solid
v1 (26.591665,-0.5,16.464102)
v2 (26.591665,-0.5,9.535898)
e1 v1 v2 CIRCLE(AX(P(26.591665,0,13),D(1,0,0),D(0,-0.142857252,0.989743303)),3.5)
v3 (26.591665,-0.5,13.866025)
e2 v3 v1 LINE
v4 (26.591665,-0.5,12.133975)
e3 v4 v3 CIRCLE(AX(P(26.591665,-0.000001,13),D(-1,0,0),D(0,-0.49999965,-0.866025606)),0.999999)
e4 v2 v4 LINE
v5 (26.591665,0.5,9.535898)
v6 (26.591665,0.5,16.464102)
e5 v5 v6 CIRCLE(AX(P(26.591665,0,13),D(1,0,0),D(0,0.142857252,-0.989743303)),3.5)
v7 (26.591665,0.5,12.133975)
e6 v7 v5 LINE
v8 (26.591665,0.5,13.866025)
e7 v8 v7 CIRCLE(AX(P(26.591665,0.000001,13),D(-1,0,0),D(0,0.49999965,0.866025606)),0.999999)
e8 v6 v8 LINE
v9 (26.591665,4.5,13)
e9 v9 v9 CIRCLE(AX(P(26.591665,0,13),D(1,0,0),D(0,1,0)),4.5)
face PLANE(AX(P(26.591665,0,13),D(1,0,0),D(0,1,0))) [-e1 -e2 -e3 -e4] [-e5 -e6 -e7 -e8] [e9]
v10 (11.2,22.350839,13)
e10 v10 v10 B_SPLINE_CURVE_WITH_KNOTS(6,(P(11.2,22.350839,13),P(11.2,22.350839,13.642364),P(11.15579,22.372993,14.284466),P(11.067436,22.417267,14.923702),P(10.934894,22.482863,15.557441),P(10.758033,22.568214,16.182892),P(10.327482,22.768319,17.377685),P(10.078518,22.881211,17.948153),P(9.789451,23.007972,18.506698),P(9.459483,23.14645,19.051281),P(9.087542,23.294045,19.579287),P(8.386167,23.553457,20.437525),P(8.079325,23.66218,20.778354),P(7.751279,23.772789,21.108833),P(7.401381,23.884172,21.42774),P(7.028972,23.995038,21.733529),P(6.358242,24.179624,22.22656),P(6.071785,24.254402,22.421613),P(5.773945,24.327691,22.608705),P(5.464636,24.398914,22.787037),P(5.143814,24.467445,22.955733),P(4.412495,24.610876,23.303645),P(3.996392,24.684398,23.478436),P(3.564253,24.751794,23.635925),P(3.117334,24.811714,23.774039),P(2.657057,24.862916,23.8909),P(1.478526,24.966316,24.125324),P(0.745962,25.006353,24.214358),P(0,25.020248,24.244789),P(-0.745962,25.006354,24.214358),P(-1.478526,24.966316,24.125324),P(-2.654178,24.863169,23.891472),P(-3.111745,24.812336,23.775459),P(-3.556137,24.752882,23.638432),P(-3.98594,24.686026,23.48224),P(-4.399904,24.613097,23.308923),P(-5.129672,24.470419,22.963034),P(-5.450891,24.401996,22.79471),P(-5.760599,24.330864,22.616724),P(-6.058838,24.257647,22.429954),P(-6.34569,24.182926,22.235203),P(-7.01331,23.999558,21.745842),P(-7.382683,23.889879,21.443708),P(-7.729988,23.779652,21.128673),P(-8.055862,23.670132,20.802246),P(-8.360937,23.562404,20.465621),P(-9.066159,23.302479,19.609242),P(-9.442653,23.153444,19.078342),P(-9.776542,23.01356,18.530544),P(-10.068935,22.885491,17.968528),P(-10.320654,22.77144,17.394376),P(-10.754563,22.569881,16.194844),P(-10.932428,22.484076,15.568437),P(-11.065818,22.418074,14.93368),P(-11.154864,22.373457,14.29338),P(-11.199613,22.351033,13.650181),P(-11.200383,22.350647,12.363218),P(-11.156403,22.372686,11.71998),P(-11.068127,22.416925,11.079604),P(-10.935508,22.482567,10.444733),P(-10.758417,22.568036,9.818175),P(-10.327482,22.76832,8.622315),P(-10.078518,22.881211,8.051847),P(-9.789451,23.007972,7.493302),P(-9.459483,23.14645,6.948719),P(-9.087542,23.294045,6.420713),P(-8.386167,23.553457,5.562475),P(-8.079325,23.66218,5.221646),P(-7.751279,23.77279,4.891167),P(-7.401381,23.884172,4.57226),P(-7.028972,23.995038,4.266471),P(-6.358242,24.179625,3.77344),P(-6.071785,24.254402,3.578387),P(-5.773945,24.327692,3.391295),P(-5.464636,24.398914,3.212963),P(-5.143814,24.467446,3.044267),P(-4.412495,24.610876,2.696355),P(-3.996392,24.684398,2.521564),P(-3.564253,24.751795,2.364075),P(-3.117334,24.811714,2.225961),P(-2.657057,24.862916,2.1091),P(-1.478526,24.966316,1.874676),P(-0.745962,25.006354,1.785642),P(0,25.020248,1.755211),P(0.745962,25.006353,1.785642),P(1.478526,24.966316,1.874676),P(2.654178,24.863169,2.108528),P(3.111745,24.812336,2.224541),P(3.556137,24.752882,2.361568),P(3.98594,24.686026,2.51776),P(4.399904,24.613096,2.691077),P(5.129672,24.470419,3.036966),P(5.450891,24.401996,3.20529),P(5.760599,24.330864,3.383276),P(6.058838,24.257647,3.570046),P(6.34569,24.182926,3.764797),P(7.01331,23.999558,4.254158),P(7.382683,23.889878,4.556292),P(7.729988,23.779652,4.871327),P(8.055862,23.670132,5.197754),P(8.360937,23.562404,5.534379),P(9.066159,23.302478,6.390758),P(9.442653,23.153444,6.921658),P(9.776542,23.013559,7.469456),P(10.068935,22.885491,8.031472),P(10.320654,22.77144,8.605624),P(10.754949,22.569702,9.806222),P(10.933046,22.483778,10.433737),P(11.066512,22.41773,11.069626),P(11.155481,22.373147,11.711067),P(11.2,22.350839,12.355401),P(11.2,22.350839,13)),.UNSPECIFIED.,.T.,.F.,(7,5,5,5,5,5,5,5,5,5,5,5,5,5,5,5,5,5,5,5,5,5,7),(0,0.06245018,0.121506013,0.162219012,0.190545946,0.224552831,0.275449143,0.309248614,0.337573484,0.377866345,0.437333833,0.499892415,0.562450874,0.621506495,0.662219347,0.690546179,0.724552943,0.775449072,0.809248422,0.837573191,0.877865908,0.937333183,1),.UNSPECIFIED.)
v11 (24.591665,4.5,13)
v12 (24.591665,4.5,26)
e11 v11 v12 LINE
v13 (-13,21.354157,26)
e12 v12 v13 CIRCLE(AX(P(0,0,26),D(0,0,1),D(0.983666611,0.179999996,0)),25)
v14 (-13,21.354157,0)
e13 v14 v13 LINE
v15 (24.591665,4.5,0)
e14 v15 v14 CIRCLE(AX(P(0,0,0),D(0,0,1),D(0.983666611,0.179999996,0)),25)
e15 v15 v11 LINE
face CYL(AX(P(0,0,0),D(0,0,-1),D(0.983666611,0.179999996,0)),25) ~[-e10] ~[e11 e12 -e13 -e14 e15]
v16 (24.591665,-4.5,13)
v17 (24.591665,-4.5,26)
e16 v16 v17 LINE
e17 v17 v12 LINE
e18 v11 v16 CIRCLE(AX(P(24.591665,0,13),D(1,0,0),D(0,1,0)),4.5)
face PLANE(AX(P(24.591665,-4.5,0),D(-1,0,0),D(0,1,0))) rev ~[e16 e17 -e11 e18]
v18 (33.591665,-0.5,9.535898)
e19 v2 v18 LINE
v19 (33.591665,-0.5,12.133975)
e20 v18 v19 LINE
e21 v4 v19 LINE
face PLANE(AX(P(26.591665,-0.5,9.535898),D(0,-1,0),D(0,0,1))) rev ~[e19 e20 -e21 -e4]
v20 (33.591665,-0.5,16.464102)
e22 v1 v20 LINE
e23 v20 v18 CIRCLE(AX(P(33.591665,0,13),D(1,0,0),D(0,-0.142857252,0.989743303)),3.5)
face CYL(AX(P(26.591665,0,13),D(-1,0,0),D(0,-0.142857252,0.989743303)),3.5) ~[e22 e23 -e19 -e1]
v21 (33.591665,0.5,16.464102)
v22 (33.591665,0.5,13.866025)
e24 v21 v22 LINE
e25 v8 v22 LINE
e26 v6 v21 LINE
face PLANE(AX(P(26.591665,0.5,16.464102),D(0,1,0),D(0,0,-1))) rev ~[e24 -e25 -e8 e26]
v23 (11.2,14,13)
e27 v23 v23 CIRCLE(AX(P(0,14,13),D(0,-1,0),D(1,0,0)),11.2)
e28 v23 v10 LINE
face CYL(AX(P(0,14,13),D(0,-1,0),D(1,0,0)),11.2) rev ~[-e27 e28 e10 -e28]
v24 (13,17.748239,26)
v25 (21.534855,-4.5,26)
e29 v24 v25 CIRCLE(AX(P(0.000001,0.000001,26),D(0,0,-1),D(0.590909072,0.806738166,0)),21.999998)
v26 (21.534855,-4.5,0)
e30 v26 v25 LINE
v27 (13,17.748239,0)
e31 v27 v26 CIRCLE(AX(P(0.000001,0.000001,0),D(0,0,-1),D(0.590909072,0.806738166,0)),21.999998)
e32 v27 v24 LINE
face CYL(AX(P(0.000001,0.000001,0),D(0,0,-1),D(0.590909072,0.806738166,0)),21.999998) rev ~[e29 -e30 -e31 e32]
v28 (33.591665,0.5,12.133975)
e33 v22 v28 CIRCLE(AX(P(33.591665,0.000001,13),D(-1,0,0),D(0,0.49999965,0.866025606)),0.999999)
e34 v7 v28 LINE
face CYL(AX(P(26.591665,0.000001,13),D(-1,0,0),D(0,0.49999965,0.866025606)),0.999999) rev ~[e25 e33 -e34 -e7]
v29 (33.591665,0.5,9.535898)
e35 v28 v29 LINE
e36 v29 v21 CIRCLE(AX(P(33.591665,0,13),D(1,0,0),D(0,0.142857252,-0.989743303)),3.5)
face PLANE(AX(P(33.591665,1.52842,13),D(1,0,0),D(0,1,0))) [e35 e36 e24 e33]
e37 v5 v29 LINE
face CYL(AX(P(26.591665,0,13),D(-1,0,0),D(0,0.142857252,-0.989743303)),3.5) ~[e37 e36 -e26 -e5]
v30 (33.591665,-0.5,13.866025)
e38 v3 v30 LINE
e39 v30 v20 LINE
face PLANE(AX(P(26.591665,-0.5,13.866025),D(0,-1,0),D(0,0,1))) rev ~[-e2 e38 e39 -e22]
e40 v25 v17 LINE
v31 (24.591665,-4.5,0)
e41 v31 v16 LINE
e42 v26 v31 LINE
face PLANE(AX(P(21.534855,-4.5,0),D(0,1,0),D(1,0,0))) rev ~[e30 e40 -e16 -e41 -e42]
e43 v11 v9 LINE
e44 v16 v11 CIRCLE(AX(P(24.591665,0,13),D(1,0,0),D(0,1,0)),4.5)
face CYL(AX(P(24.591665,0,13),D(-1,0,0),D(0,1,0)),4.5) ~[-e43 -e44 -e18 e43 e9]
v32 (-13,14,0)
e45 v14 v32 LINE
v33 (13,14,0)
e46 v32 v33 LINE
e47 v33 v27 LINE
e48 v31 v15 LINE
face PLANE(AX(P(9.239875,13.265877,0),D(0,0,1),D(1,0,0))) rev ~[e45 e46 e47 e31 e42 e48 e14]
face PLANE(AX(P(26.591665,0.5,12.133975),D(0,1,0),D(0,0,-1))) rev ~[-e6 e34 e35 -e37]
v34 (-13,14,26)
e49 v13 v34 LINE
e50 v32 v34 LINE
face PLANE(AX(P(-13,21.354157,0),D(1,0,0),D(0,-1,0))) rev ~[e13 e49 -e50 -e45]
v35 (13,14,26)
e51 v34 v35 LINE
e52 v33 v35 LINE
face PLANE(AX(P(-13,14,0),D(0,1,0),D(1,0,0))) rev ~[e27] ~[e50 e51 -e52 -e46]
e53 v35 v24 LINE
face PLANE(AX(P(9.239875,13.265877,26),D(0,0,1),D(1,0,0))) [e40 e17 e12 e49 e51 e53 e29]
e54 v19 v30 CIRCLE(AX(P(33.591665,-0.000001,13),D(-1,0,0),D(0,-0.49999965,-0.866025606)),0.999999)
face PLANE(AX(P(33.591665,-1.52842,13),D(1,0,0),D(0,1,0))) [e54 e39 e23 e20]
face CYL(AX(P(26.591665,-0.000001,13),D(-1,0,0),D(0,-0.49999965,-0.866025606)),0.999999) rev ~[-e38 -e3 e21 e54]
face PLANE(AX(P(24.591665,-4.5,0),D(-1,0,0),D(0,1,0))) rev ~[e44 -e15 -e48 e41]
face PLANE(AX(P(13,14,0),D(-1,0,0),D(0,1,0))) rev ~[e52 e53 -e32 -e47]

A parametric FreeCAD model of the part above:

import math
import FreeCAD as App
import Part
import Sketcher
Q = App.Units.Quantity

doc = App.newDocument("Part")
params = doc.addObject("Spreadsheet::Sheet", "Params")
for row, (alias, value) in enumerate([
    ("sketch1_radius", "21.999998 mm"),
    ("sketch1_radius2", "25 mm"),
    ("sketch1_width", "26 mm"),
    ("sketch1_height", "9 mm"),
    ("pad1_length", "26 mm"),
    ("sketch2_diameter", "22.4 mm"),
    ("pocket1_length", "25 mm"),
    ("sketch3_diameter", "9 mm"),
    ("pad2_length", "2 mm"),
    ("sketch4_radius", "0.999999 mm"),
    ("sketch4_radius2", "3.5 mm"),
    ("pad3_length", "7 mm"),
], start=1):
    params.set(f"A{row}", alias)
    params.set(f"B{row}", "=" + value)
    params.setAlias(f"B{row}", alias)

body = doc.addObject("PartDesign::Body", "Body")

# Sketch on XY plane
sketch1 = doc.addObject("Sketcher::SketchObject", "Sketch")
body.addObject(sketch1)
sketch1.AttachmentSupport = (doc.XY_Plane, [""])
sketch1.MapMode = "FlatFace"
sketch1.addGeometry([
    Part.ArcOfCircle(Part.Circle(App.Vector(0, 0, 0), App.Vector(0, 0, 1), 22), math.radians(-12), math.radians(54)),  # 0
    Part.LineSegment(App.Vector(21.5, -4.5, 0), App.Vector(24.6, -4.5, 0)),  # 1
    Part.LineSegment(App.Vector(24.6, -4.5, 0), App.Vector(24.6, 4.5, 0)),  # 2
    Part.ArcOfCircle(Part.Circle(App.Vector(0, 0, 0), App.Vector(0, 0, 1), 25), math.radians(10), math.radians(121)),  # 3
    Part.LineSegment(App.Vector(-13, 21.4, 0), App.Vector(-13, 14, 0)),  # 4
    Part.LineSegment(App.Vector(-13, 14, 0), App.Vector(13, 14, 0)),  # 5
    Part.LineSegment(App.Vector(13, 14, 0), App.Vector(13, 17.7, 0)),  # 6
], False)
sketch1.addConstraint([
    Sketcher.Constraint("Coincident", 0, 1, 1, 1),
    Sketcher.Constraint("Coincident", 1, 2, 2, 1),
    Sketcher.Constraint("Coincident", 2, 2, 3, 1),
    Sketcher.Constraint("Coincident", 3, 2, 4, 1),
    Sketcher.Constraint("Coincident", 4, 2, 5, 1),
    Sketcher.Constraint("Coincident", 5, 2, 6, 1),
    Sketcher.Constraint("Coincident", 6, 2, 0, 2),
    Sketcher.Constraint("Horizontal", 1),
    Sketcher.Constraint("Vertical", 2),
    Sketcher.Constraint("Vertical", 4),
    Sketcher.Constraint("Horizontal", 5),
    Sketcher.Constraint("Vertical", 6),
    Sketcher.Constraint("Coincident", 0, 3, -1, 1),
    Sketcher.Constraint("Coincident", 3, 3, -1, 1),
    Sketcher.Constraint("Radius", 0, Q("21.999998 mm")),
    Sketcher.Constraint("Radius", 3, Q("25 mm")),
    Sketcher.Constraint("DistanceX", 5, 1, 5, 2, Q("26 mm")),
    Sketcher.Constraint("DistanceY", 2, 1, 2, 2, Q("9 mm")),
    Sketcher.Constraint("DistanceX", 3, 2, -1, 1, Q("13 mm")),
    Sketcher.Constraint("DistanceY", -1, 1, 4, 2, Q("14 mm")),
    Sketcher.Constraint("DistanceY", 0, 1, -1, 1, Q("4.5 mm")),
])
sketch1.setExpression("Constraints[14]", "Params.sketch1_radius")
sketch1.setExpression("Constraints[15]", "Params.sketch1_radius2")
sketch1.setExpression("Constraints[16]", "Params.sketch1_width")
sketch1.setExpression("Constraints[17]", "Params.sketch1_height")
pad1 = doc.addObject("PartDesign::Pad", "Pad")
body.addObject(pad1)
pad1.Profile = sketch1
pad1.setExpression("Length", "Params.pad1_length")

# Sketch on XZ plane
sketch2 = doc.addObject("Sketcher::SketchObject", "Sketch001")
body.addObject(sketch2)
sketch2.AttachmentSupport = (doc.XZ_Plane, [""])
sketch2.MapMode = "FlatFace"
sketch2.AttachmentOffset = App.Placement(App.Vector(0, 0, -14), App.Rotation())
sketch2.addGeometry(Part.Circle(App.Vector(0, 13, 0), App.Vector(0, 0, 1), 11), False)
sketch2.addConstraint([
    Sketcher.Constraint("PointOnObject", 0, 3, -2),
    Sketcher.Constraint("Diameter", 0, Q("22.4 mm")),
    Sketcher.Constraint("DistanceY", -1, 1, 0, 3, Q("13 mm")),
])
sketch2.setExpression("Constraints[1]", "Params.sketch2_diameter")
pocket1 = doc.addObject("PartDesign::Pocket", "Pocket")
body.addObject(pocket1)
pocket1.Profile = sketch2
pocket1.setExpression("Length", "Params.pocket1_length")

# Sketch on YZ plane
sketch3 = doc.addObject("Sketcher::SketchObject", "Sketch002")
body.addObject(sketch3)
sketch3.AttachmentSupport = (doc.YZ_Plane, [""])
sketch3.MapMode = "FlatFace"
sketch3.AttachmentOffset = App.Placement(App.Vector(0, 0, 24.591665), App.Rotation())
sketch3.addGeometry(Part.Circle(App.Vector(0, 13, 0), App.Vector(0, 0, 1), 4.5), False)
sketch3.addConstraint([
    Sketcher.Constraint("PointOnObject", 0, 3, -2),
    Sketcher.Constraint("Diameter", 0, Q("9 mm")),
    Sketcher.Constraint("DistanceY", -1, 1, 0, 3, Q("13 mm")),
])
sketch3.setExpression("Constraints[1]", "Params.sketch3_diameter")
pad2 = doc.addObject("PartDesign::Pad", "Pad001")
body.addObject(pad2)
pad2.Profile = sketch3
pad2.setExpression("Length", "Params.pad2_length")

# Sketch on YZ plane
sketch4 = doc.addObject("Sketcher::SketchObject", "Sketch003")
body.addObject(sketch4)
sketch4.AttachmentSupport = (doc.YZ_Plane, [""])
sketch4.MapMode = "FlatFace"
sketch4.AttachmentOffset = App.Placement(App.Vector(0, 0, 26.591665), App.Rotation())
sketch4.addGeometry([
    Part.ArcOfCircle(Part.Circle(App.Vector(0, 13, 0), App.Vector(0, 0, 1), 3.5), math.radians(-82), math.radians(82)),  # 0
    Part.LineSegment(App.Vector(0.5, 16.5, 0), App.Vector(0.5, 13.9, 0)),  # 1
    Part.ArcOfCircle(Part.Circle(App.Vector(0, 13, 0), App.Vector(0, 0, 1), 1), math.radians(-60), math.radians(60)),  # 2
    Part.LineSegment(App.Vector(0.5, 12.1, 0), App.Vector(0.5, 9.5, 0)),  # 3
    Part.LineSegment(App.Vector(-0.5, 13.9, 0), App.Vector(-0.5, 16.5, 0)),  # 4
    Part.ArcOfCircle(Part.Circle(App.Vector(0, 13, 0), App.Vector(0, 0, 1), 3.5), math.radians(98), math.radians(262)),  # 5
    Part.LineSegment(App.Vector(-0.5, 9.5, 0), App.Vector(-0.5, 12.1, 0)),  # 6
    Part.ArcOfCircle(Part.Circle(App.Vector(0, 13, 0), App.Vector(0, 0, 1), 1), math.radians(120), math.radians(240)),  # 7
], False)
sketch4.addConstraint([
    Sketcher.Constraint("Coincident", 0, 2, 1, 1),
    Sketcher.Constraint("Coincident", 1, 2, 2, 2),
    Sketcher.Constraint("Coincident", 2, 1, 3, 1),
    Sketcher.Constraint("Coincident", 3, 2, 0, 1),
    Sketcher.Constraint("Coincident", 4, 2, 5, 1),
    Sketcher.Constraint("Coincident", 5, 2, 6, 1),
    Sketcher.Constraint("Coincident", 6, 2, 7, 2),
    Sketcher.Constraint("Coincident", 7, 1, 4, 1),
    Sketcher.Constraint("Vertical", 1),
    Sketcher.Constraint("Vertical", 3),
    Sketcher.Constraint("Vertical", 4),
    Sketcher.Constraint("Vertical", 6),
    Sketcher.Constraint("Coincident", 2, 3, 0, 3),
    Sketcher.Constraint("Coincident", 5, 3, 0, 3),
    Sketcher.Constraint("Coincident", 7, 3, 0, 3),
    Sketcher.Constraint("Equal", 0, 5),
    Sketcher.Constraint("Equal", 2, 7),
    Sketcher.Constraint("Symmetric", 0, 2, 4, 2, -2),
    Sketcher.Constraint("Horizontal", 3, 2, 5, 2),
    Sketcher.Constraint("Vertical", 1, 2, 2, 1),
    Sketcher.Constraint("Radius", 2, Q("0.999999 mm")),
    Sketcher.Constraint("Radius", 0, Q("3.5 mm")),
    Sketcher.Constraint("DistanceY", -1, 1, 0, 3, Q("13 mm")),
    Sketcher.Constraint("DistanceX", 4, 2, 0, 2, Q("1 mm")),
])
sketch4.setExpression("Constraints[20]", "Params.sketch4_radius")
sketch4.setExpression("Constraints[21]", "Params.sketch4_radius2")
pad3 = doc.addObject("PartDesign::Pad", "Pad002")
body.addObject(pad3)
pad3.Profile = sketch4
pad3.setExpression("Length", "Params.pad3_length")

doc.recompute()
